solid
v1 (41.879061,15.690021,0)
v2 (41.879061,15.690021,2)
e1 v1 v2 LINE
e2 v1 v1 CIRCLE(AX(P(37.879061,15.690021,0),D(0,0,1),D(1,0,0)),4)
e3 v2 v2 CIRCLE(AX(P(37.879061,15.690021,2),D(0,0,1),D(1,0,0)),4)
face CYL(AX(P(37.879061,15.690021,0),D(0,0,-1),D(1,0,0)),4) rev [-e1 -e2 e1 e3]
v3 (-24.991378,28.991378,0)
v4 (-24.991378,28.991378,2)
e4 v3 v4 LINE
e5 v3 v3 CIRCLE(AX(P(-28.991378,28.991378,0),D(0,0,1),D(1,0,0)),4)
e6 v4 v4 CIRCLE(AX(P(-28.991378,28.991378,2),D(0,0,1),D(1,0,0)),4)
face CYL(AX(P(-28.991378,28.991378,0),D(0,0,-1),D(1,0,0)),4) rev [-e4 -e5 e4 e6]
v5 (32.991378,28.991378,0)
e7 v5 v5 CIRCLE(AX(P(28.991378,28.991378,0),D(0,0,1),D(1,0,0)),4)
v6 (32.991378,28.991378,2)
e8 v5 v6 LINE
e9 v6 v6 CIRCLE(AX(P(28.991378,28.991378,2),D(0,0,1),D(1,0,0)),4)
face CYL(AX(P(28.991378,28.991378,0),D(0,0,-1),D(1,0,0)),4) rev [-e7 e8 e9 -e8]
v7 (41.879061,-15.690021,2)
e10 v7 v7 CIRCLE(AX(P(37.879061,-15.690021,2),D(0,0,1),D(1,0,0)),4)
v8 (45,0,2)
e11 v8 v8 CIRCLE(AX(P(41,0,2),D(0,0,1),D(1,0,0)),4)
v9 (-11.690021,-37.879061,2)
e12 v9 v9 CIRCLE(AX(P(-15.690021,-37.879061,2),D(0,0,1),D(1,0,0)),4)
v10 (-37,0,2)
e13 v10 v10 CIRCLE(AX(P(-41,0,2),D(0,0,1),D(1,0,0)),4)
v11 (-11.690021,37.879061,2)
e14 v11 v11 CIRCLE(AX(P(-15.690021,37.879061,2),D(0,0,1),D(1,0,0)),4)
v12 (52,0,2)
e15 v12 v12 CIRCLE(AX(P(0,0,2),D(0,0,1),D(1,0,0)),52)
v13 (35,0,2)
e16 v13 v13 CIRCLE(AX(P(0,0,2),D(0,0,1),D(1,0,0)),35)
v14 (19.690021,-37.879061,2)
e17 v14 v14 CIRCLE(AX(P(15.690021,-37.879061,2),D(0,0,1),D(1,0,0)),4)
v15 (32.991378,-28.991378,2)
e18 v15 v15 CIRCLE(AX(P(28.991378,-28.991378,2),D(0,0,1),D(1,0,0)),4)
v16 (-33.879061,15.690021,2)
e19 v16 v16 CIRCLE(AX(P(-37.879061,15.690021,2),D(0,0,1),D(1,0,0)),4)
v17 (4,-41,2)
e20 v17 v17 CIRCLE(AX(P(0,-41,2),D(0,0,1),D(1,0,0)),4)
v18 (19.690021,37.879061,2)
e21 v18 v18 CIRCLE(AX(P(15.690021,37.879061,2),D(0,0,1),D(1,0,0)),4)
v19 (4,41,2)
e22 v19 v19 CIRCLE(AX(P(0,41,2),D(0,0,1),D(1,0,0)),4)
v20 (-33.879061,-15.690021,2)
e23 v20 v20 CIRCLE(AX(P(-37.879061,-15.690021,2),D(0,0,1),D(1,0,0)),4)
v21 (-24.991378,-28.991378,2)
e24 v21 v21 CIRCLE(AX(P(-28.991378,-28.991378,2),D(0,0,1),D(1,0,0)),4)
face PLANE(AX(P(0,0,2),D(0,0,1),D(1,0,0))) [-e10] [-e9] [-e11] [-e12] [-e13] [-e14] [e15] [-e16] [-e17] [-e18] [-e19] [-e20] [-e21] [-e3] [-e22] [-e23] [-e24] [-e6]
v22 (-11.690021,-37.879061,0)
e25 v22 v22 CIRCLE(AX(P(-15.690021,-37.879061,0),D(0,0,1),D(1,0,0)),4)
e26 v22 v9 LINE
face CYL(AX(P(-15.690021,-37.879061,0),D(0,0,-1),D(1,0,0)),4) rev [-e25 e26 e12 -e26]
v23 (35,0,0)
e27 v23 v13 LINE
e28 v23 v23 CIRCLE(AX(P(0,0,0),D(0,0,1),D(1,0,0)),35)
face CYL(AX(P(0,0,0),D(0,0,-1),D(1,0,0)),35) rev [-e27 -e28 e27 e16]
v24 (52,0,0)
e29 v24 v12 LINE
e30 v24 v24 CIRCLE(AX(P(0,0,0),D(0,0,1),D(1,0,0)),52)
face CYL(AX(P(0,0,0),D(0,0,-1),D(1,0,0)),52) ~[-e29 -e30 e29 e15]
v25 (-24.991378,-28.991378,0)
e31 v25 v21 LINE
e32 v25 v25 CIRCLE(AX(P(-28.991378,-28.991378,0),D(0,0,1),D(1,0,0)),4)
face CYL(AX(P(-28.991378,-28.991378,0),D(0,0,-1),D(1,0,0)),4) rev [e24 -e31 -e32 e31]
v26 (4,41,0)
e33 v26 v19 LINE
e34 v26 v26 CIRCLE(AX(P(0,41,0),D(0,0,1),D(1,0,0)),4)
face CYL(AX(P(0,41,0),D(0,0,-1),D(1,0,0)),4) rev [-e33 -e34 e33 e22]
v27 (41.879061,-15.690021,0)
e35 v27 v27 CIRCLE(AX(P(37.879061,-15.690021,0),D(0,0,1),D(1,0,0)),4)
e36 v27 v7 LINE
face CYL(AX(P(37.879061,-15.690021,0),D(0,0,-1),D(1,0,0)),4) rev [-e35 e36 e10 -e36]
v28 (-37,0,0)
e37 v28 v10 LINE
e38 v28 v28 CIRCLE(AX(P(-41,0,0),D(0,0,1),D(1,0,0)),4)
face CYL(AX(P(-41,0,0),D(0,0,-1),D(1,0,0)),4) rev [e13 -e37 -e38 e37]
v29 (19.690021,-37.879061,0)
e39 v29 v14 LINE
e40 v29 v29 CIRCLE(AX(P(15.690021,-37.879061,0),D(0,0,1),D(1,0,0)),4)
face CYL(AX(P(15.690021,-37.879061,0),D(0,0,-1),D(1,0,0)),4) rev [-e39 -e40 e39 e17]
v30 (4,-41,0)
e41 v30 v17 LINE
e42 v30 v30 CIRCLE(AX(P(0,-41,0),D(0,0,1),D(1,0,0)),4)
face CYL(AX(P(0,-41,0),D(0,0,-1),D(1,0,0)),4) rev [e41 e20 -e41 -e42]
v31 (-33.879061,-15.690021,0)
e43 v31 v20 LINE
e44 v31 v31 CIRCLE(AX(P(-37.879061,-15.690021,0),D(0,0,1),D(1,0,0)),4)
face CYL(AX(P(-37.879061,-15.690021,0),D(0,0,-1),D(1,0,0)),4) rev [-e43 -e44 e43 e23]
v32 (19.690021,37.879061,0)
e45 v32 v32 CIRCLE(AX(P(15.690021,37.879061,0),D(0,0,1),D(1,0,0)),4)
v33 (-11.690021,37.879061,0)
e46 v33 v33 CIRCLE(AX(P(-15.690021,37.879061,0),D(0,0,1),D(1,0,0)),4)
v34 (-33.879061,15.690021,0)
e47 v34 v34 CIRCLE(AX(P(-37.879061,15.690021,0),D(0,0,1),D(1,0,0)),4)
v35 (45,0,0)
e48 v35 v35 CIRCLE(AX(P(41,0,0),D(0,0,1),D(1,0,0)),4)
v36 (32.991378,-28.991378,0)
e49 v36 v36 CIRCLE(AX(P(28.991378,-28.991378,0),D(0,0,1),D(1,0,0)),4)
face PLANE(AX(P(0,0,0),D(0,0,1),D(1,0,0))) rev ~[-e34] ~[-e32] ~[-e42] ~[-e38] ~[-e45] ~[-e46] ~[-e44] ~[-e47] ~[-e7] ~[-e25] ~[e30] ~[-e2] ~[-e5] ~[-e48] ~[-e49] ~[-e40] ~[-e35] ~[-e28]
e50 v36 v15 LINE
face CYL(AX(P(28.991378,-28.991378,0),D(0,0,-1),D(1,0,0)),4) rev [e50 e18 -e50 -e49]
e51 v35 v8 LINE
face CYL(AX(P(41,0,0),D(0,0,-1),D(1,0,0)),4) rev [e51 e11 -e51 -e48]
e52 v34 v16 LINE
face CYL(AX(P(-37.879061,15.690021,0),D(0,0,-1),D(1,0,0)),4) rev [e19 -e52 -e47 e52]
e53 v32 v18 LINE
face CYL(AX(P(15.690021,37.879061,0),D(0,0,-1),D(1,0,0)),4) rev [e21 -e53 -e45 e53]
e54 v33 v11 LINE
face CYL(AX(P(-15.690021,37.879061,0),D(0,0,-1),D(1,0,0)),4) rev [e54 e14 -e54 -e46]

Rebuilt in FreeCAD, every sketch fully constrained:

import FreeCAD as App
import Part
import Sketcher

V = App.Vector
Q = App.Units.Quantity

doc = App.newDocument("Part")
params = doc.addObject("Spreadsheet::Sheet", "Params")
for row, (alias, value) in enumerate([
    ("sketch1_diameter", "104 mm"),
    ("sketch1_diameter2", "8 mm"),
    ("sketch1_diameter3", "70 mm"),
    ("pad1_length", "2 mm"),
    ("sketch2_diameter", "104 mm"),
    ("sketch2_diameter2", "8 mm"),
    ("sketch2_diameter3", "70 mm"),
    ("pad2_length", "2 mm"),
], start=1):
    params.set(f"A{row}", alias)
    params.set(f"B{row}", "=" + value)
    params.setAlias(f"B{row}", alias)

body = doc.addObject("PartDesign::Body", "Body")

# Sketch on XY plane
sketch1 = body.newObject("Sketcher::SketchObject", "Sketch")
sketch1.AttachmentSupport = (doc.getObject("XY_Plane"), [""])
sketch1.MapMode = "FlatFace"
sketch1.addGeometry(Part.Circle(V(0, 0, 0), V(0, 0, 1), 52), False)
sketch1.addGeometry(Part.Circle(V(-28.991378, -28.991378, 0), V(0, 0, 1), 4), False)
sketch1.addGeometry(Part.Circle(V(-15.690021, -37.879061, 0), V(0, 0, 1), 4), False)
sketch1.addGeometry(Part.Circle(V(-37.879061, -15.690021, 0), V(0, 0, 1), 4), False)
sketch1.addGeometry(Part.Circle(V(0, -41, 0), V(0, 0, 1), 4), False)
sketch1.addGeometry(Part.Circle(V(15.690021, -37.879061, 0), V(0, 0, 1), 4), False)
sketch1.addGeometry(Part.Circle(V(28.991378, -28.991378, 0), V(0, 0, 1), 4), False)
sketch1.addGeometry(Part.Circle(V(37.879061, -15.690021, 0), V(0, 0, 1), 4), False)
sketch1.addGeometry(Part.Circle(V(-41, 0, 0), V(0, 0, 1), 4), False)
sketch1.addGeometry(Part.Circle(V(-37.879061, 15.690021, 0), V(0, 0, 1), 4), False)
sketch1.addGeometry(Part.Circle(V(-28.991378, 28.991378, 0), V(0, 0, 1), 4), False)
sketch1.addGeometry(Part.Circle(V(-15.690021, 37.879061, 0), V(0, 0, 1), 4), False)
sketch1.addGeometry(Part.Circle(V(0, 0, 0), V(0, 0, 1), 35), False)
sketch1.addGeometry(Part.Circle(V(41, 0, 0), V(0, 0, 1), 4), False)
sketch1.addGeometry(Part.Circle(V(37.879061, 15.690021, 0), V(0, 0, 1), 4), False)
sketch1.addGeometry(Part.Circle(V(0, 41, 0), V(0, 0, 1), 4), False)
sketch1.addGeometry(Part.Circle(V(15.690021, 37.879061, 0), V(0, 0, 1), 4), False)
sketch1.addGeometry(Part.Circle(V(28.991378, 28.991378, 0), V(0, 0, 1), 4), False)
sketch1.addConstraint(Sketcher.Constraint("Coincident", 0, 3, -1, 1))
sketch1.addConstraint(Sketcher.Constraint("Coincident", 12, 3, -1, 1))
sketch1.addConstraint(Sketcher.Constraint("Equal", 1, 2))
sketch1.addConstraint(Sketcher.Constraint("Equal", 2, 3))
sketch1.addConstraint(Sketcher.Constraint("Equal", 3, 4))
sketch1.addConstraint(Sketcher.Constraint("Equal", 4, 5))
sketch1.addConstraint(Sketcher.Constraint("Equal", 5, 6))
sketch1.addConstraint(Sketcher.Constraint("Equal", 6, 7))
sketch1.addConstraint(Sketcher.Constraint("Equal", 7, 8))
sketch1.addConstraint(Sketcher.Constraint("Equal", 8, 9))
sketch1.addConstraint(Sketcher.Constraint("Equal", 9, 10))
sketch1.addConstraint(Sketcher.Constraint("Equal", 10, 11))
sketch1.addConstraint(Sketcher.Constraint("Equal", 11, 13))
sketch1.addConstraint(Sketcher.Constraint("Equal", 13, 14))
sketch1.addConstraint(Sketcher.Constraint("Equal", 14, 15))
sketch1.addConstraint(Sketcher.Constraint("Equal", 15, 16))
sketch1.addConstraint(Sketcher.Constraint("Equal", 16, 17))
sketch1.addConstraint(Sketcher.Constraint("Symmetric", 7, 3, 9, 3, -1, 1))
sketch1.addConstraint(Sketcher.Constraint("Symmetric", 6, 3, 10, 3, -1, 1))
sketch1.addConstraint(Sketcher.Constraint("Symmetric", 5, 3, 11, 3, -1, 1))
sketch1.addConstraint(Sketcher.Constraint("Symmetric", 8, 3, 13, 3, -1, 1))
sketch1.addConstraint(Sketcher.Constraint("Symmetric", 3, 3, 14, 3, -1, 1))
sketch1.addConstraint(Sketcher.Constraint("Symmetric", 4, 3, 15, 3, -1, 1))
sketch1.addConstraint(Sketcher.Constraint("Symmetric", 2, 3, 16, 3, -1, 1))
sketch1.addConstraint(Sketcher.Constraint("Symmetric", 1, 3, 17, 3, -1, 1))
sketch1.addConstraint(Sketcher.Constraint("Symmetric", 2, 3, 5, 3, -2))
sketch1.addConstraint(Sketcher.Constraint("Symmetric", 1, 3, 6, 3, -2))
sketch1.addConstraint(Sketcher.Constraint("Symmetric", 3, 3, 7, 3, -2))
sketch1.addConstraint(Sketcher.Constraint("PointOnObject", 4, 3, -2))
sketch1.addConstraint(Sketcher.Constraint("PointOnObject", 8, 3, -1))
sketch1.addConstraint(Sketcher.Constraint("Diameter", 0, Q("104 mm")))
sketch1.addConstraint(Sketcher.Constraint("Diameter", 1, Q("8 mm")))
sketch1.addConstraint(Sketcher.Constraint("Diameter", 12, Q("70 mm")))
sketch1.addConstraint(Sketcher.Constraint("DistanceY", 4, 3, -1, 1, Q("41 mm")))
sketch1.addConstraint(Sketcher.Constraint("DistanceX", 8, 3, -1, 1, Q("41 mm")))
sketch1.addConstraint(Sketcher.Constraint("DistanceX", 1, 3, 5, 3, Q("44.681399 mm")))
sketch1.addConstraint(Sketcher.Constraint("DistanceY", 1, 3, 9, 3, Q("44.681399 mm")))
sketch1.addConstraint(Sketcher.Constraint("DistanceX", 1, 3, -1, 1, Q("28.991378 mm")))
sketch1.addConstraint(Sketcher.Constraint("DistanceY", 1, 3, -1, 1, Q("28.991378 mm")))
sketch1.addConstraint(Sketcher.Constraint("DistanceY", 2, 3, -1, 1, Q("37.879061 mm")))
sketch1.addConstraint(Sketcher.Constraint("DistanceX", 3, 3, -1, 1, Q("37.879061 mm")))
sketch1.setExpression("Constraints[30]", "Params.sketch1_diameter")
sketch1.setExpression("Constraints[31]", "Params.sketch1_diameter2")
sketch1.setExpression("Constraints[32]", "Params.sketch1_diameter3")
pad1 = body.newObject("PartDesign::Pad", "Pad")
pad1.Profile = sketch1
pad1.setExpression("Length", "Params.pad1_length")

# Sketch on XY plane
sketch2 = body.newObject("Sketcher::SketchObject", "Sketch001")
sketch2.AttachmentSupport = (doc.getObject("XY_Plane"), [""])
sketch2.MapMode = "FlatFace"
sketch2.addGeometry(Part.Circle(V(0, 0, 0), V(0, 0, 1), 52), False)
sketch2.addGeometry(Part.Circle(V(-28.991378, -28.991378, 0), V(0, 0, 1), 4), False)
sketch2.addGeometry(Part.Circle(V(-15.690021, -37.879061, 0), V(0, 0, 1), 4), False)
sketch2.addGeometry(Part.Circle(V(-37.879061, -15.690021, 0), V(0, 0, 1), 4), False)
sketch2.addGeometry(Part.Circle(V(0, -41, 0), V(0, 0, 1), 4), False)
sketch2.addGeometry(Part.Circle(V(15.690021, -37.879061, 0), V(0, 0, 1), 4), False)
sketch2.addGeometry(Part.Circle(V(28.991378, -28.991378, 0), V(0, 0, 1), 4), False)
sketch2.addGeometry(Part.Circle(V(37.879061, -15.690021, 0), V(0, 0, 1), 4), False)
sketch2.addGeometry(Part.Circle(V(-41, 0, 0), V(0, 0, 1), 4), False)
sketch2.addGeometry(Part.Circle(V(-37.879061, 15.690021, 0), V(0, 0, 1), 4), False)
sketch2.addGeometry(Part.Circle(V(-28.991378, 28.991378, 0), V(0, 0, 1), 4), False)
sketch2.addGeometry(Part.Circle(V(-15.690021, 37.879061, 0), V(0, 0, 1), 4), False)
sketch2.addGeometry(Part.Circle(V(0, 0, 0), V(0, 0, 1), 35), False)
sketch2.addGeometry(Part.Circle(V(41, 0, 0), V(0, 0, 1), 4), False)
sketch2.addGeometry(Part.Circle(V(37.879061, 15.690021, 0), V(0, 0, 1), 4), False)
sketch2.addGeometry(Part.Circle(V(0, 41, 0), V(0, 0, 1), 4), False)
sketch2.addGeometry(Part.Circle(V(15.690021, 37.879061, 0), V(0, 0, 1), 4), False)
sketch2.addGeometry(Part.Circle(V(28.991378, 28.991378, 0), V(0, 0, 1), 4), False)
sketch2.addConstraint(Sketcher.Constraint("Coincident", 0, 3, -1, 1))
sketch2.addConstraint(Sketcher.Constraint("Coincident", 12, 3, -1, 1))
sketch2.addConstraint(Sketcher.Constraint("Equal", 1, 2))
sketch2.addConstraint(Sketcher.Constraint("Equal", 2, 3))
sketch2.addConstraint(Sketcher.Constraint("Equal", 3, 4))
sketch2.addConstraint(Sketcher.Constraint("Equal", 4, 5))
sketch2.addConstraint(Sketcher.Constraint("Equal", 5, 6))
sketch2.addConstraint(Sketcher.Constraint("Equal", 6, 7))
sketch2.addConstraint(Sketcher.Constraint("Equal", 7, 8))
sketch2.addConstraint(Sketcher.Constraint("Equal", 8, 9))
sketch2.addConstraint(Sketcher.Constraint("Equal", 9, 10))
sketch2.addConstraint(Sketcher.Constraint("Equal", 10, 11))
sketch2.addConstraint(Sketcher.Constraint("Equal", 11, 13))
sketch2.addConstraint(Sketcher.Constraint("Equal", 13, 14))
sketch2.addConstraint(Sketcher.Constraint("Equal", 14, 15))
sketch2.addConstraint(Sketcher.Constraint("Equal", 15, 16))
sketch2.addConstraint(Sketcher.Constraint("Equal", 16, 17))
sketch2.addConstraint(Sketcher.Constraint("Symmetric", 7, 3, 9, 3, -1, 1))
sketch2.addConstraint(Sketcher.Constraint("Symmetric", 6, 3, 10, 3, -1, 1))
sketch2.addConstraint(Sketcher.Constraint("Symmetric", 5, 3, 11, 3, -1, 1))
sketch2.addConstraint(Sketcher.Constraint("Symmetric", 8, 3, 13, 3, -1, 1))
sketch2.addConstraint(Sketcher.Constraint("Symmetric", 3, 3, 14, 3, -1, 1))
sketch2.addConstraint(Sketcher.Constraint("Symmetric", 4, 3, 15, 3, -1, 1))
sketch2.addConstraint(Sketcher.Constraint("Symmetric", 2, 3, 16, 3, -1, 1))
sketch2.addConstraint(Sketcher.Constraint("Symmetric", 1, 3, 17, 3, -1, 1))
sketch2.addConstraint(Sketcher.Constraint("Symmetric", 2, 3, 5, 3, -2))
sketch2.addConstraint(Sketcher.Constraint("Symmetric", 1, 3, 6, 3, -2))
sketch2.addConstraint(Sketcher.Constraint("Symmetric", 3, 3, 7, 3, -2))
sketch2.addConstraint(Sketcher.Constraint("PointOnObject", 4, 3, -2))
sketch2.addConstraint(Sketcher.Constraint("PointOnObject", 8, 3, -1))
sketch2.addConstraint(Sketcher.Constraint("Diameter", 0, Q("104 mm")))
sketch2.addConstraint(Sketcher.Constraint("Diameter", 1, Q("8 mm")))
sketch2.addConstraint(Sketcher.Constraint("Diameter", 12, Q("70 mm")))
sketch2.addConstraint(Sketcher.Constraint("DistanceY", 4, 3, -1, 1, Q("41 mm")))
sketch2.addConstraint(Sketcher.Constraint("DistanceX", 8, 3, -1, 1, Q("41 mm")))
sketch2.addConstraint(Sketcher.Constraint("DistanceX", 1, 3, 5, 3, Q("44.681399 mm")))
sketch2.addConstraint(Sketcher.Constraint("DistanceY", 1, 3, 9, 3, Q("44.681399 mm")))
sketch2.addConstraint(Sketcher.Constraint("DistanceX", 1, 3, -1, 1, Q("28.991378 mm")))
sketch2.addConstraint(Sketcher.Constraint("DistanceY", 1, 3, -1, 1, Q("28.991378 mm")))
sketch2.addConstraint(Sketcher.Constraint("DistanceY", 2, 3, -1, 1, Q("37.879061 mm")))
sketch2.addConstraint(Sketcher.Constraint("DistanceX", 3, 3, -1, 1, Q("37.879061 mm")))
sketch2.setExpression("Constraints[30]", "Params.sketch2_diameter")
sketch2.setExpression("Constraints[31]", "Params.sketch2_diameter2")
sketch2.setExpression("Constraints[32]", "Params.sketch2_diameter3")
pad2 = body.newObject("PartDesign::Pad", "Pad001")
pad2.Profile = sketch2
pad2.setExpression("Length", "Params.pad2_length")

doc.recompute()
